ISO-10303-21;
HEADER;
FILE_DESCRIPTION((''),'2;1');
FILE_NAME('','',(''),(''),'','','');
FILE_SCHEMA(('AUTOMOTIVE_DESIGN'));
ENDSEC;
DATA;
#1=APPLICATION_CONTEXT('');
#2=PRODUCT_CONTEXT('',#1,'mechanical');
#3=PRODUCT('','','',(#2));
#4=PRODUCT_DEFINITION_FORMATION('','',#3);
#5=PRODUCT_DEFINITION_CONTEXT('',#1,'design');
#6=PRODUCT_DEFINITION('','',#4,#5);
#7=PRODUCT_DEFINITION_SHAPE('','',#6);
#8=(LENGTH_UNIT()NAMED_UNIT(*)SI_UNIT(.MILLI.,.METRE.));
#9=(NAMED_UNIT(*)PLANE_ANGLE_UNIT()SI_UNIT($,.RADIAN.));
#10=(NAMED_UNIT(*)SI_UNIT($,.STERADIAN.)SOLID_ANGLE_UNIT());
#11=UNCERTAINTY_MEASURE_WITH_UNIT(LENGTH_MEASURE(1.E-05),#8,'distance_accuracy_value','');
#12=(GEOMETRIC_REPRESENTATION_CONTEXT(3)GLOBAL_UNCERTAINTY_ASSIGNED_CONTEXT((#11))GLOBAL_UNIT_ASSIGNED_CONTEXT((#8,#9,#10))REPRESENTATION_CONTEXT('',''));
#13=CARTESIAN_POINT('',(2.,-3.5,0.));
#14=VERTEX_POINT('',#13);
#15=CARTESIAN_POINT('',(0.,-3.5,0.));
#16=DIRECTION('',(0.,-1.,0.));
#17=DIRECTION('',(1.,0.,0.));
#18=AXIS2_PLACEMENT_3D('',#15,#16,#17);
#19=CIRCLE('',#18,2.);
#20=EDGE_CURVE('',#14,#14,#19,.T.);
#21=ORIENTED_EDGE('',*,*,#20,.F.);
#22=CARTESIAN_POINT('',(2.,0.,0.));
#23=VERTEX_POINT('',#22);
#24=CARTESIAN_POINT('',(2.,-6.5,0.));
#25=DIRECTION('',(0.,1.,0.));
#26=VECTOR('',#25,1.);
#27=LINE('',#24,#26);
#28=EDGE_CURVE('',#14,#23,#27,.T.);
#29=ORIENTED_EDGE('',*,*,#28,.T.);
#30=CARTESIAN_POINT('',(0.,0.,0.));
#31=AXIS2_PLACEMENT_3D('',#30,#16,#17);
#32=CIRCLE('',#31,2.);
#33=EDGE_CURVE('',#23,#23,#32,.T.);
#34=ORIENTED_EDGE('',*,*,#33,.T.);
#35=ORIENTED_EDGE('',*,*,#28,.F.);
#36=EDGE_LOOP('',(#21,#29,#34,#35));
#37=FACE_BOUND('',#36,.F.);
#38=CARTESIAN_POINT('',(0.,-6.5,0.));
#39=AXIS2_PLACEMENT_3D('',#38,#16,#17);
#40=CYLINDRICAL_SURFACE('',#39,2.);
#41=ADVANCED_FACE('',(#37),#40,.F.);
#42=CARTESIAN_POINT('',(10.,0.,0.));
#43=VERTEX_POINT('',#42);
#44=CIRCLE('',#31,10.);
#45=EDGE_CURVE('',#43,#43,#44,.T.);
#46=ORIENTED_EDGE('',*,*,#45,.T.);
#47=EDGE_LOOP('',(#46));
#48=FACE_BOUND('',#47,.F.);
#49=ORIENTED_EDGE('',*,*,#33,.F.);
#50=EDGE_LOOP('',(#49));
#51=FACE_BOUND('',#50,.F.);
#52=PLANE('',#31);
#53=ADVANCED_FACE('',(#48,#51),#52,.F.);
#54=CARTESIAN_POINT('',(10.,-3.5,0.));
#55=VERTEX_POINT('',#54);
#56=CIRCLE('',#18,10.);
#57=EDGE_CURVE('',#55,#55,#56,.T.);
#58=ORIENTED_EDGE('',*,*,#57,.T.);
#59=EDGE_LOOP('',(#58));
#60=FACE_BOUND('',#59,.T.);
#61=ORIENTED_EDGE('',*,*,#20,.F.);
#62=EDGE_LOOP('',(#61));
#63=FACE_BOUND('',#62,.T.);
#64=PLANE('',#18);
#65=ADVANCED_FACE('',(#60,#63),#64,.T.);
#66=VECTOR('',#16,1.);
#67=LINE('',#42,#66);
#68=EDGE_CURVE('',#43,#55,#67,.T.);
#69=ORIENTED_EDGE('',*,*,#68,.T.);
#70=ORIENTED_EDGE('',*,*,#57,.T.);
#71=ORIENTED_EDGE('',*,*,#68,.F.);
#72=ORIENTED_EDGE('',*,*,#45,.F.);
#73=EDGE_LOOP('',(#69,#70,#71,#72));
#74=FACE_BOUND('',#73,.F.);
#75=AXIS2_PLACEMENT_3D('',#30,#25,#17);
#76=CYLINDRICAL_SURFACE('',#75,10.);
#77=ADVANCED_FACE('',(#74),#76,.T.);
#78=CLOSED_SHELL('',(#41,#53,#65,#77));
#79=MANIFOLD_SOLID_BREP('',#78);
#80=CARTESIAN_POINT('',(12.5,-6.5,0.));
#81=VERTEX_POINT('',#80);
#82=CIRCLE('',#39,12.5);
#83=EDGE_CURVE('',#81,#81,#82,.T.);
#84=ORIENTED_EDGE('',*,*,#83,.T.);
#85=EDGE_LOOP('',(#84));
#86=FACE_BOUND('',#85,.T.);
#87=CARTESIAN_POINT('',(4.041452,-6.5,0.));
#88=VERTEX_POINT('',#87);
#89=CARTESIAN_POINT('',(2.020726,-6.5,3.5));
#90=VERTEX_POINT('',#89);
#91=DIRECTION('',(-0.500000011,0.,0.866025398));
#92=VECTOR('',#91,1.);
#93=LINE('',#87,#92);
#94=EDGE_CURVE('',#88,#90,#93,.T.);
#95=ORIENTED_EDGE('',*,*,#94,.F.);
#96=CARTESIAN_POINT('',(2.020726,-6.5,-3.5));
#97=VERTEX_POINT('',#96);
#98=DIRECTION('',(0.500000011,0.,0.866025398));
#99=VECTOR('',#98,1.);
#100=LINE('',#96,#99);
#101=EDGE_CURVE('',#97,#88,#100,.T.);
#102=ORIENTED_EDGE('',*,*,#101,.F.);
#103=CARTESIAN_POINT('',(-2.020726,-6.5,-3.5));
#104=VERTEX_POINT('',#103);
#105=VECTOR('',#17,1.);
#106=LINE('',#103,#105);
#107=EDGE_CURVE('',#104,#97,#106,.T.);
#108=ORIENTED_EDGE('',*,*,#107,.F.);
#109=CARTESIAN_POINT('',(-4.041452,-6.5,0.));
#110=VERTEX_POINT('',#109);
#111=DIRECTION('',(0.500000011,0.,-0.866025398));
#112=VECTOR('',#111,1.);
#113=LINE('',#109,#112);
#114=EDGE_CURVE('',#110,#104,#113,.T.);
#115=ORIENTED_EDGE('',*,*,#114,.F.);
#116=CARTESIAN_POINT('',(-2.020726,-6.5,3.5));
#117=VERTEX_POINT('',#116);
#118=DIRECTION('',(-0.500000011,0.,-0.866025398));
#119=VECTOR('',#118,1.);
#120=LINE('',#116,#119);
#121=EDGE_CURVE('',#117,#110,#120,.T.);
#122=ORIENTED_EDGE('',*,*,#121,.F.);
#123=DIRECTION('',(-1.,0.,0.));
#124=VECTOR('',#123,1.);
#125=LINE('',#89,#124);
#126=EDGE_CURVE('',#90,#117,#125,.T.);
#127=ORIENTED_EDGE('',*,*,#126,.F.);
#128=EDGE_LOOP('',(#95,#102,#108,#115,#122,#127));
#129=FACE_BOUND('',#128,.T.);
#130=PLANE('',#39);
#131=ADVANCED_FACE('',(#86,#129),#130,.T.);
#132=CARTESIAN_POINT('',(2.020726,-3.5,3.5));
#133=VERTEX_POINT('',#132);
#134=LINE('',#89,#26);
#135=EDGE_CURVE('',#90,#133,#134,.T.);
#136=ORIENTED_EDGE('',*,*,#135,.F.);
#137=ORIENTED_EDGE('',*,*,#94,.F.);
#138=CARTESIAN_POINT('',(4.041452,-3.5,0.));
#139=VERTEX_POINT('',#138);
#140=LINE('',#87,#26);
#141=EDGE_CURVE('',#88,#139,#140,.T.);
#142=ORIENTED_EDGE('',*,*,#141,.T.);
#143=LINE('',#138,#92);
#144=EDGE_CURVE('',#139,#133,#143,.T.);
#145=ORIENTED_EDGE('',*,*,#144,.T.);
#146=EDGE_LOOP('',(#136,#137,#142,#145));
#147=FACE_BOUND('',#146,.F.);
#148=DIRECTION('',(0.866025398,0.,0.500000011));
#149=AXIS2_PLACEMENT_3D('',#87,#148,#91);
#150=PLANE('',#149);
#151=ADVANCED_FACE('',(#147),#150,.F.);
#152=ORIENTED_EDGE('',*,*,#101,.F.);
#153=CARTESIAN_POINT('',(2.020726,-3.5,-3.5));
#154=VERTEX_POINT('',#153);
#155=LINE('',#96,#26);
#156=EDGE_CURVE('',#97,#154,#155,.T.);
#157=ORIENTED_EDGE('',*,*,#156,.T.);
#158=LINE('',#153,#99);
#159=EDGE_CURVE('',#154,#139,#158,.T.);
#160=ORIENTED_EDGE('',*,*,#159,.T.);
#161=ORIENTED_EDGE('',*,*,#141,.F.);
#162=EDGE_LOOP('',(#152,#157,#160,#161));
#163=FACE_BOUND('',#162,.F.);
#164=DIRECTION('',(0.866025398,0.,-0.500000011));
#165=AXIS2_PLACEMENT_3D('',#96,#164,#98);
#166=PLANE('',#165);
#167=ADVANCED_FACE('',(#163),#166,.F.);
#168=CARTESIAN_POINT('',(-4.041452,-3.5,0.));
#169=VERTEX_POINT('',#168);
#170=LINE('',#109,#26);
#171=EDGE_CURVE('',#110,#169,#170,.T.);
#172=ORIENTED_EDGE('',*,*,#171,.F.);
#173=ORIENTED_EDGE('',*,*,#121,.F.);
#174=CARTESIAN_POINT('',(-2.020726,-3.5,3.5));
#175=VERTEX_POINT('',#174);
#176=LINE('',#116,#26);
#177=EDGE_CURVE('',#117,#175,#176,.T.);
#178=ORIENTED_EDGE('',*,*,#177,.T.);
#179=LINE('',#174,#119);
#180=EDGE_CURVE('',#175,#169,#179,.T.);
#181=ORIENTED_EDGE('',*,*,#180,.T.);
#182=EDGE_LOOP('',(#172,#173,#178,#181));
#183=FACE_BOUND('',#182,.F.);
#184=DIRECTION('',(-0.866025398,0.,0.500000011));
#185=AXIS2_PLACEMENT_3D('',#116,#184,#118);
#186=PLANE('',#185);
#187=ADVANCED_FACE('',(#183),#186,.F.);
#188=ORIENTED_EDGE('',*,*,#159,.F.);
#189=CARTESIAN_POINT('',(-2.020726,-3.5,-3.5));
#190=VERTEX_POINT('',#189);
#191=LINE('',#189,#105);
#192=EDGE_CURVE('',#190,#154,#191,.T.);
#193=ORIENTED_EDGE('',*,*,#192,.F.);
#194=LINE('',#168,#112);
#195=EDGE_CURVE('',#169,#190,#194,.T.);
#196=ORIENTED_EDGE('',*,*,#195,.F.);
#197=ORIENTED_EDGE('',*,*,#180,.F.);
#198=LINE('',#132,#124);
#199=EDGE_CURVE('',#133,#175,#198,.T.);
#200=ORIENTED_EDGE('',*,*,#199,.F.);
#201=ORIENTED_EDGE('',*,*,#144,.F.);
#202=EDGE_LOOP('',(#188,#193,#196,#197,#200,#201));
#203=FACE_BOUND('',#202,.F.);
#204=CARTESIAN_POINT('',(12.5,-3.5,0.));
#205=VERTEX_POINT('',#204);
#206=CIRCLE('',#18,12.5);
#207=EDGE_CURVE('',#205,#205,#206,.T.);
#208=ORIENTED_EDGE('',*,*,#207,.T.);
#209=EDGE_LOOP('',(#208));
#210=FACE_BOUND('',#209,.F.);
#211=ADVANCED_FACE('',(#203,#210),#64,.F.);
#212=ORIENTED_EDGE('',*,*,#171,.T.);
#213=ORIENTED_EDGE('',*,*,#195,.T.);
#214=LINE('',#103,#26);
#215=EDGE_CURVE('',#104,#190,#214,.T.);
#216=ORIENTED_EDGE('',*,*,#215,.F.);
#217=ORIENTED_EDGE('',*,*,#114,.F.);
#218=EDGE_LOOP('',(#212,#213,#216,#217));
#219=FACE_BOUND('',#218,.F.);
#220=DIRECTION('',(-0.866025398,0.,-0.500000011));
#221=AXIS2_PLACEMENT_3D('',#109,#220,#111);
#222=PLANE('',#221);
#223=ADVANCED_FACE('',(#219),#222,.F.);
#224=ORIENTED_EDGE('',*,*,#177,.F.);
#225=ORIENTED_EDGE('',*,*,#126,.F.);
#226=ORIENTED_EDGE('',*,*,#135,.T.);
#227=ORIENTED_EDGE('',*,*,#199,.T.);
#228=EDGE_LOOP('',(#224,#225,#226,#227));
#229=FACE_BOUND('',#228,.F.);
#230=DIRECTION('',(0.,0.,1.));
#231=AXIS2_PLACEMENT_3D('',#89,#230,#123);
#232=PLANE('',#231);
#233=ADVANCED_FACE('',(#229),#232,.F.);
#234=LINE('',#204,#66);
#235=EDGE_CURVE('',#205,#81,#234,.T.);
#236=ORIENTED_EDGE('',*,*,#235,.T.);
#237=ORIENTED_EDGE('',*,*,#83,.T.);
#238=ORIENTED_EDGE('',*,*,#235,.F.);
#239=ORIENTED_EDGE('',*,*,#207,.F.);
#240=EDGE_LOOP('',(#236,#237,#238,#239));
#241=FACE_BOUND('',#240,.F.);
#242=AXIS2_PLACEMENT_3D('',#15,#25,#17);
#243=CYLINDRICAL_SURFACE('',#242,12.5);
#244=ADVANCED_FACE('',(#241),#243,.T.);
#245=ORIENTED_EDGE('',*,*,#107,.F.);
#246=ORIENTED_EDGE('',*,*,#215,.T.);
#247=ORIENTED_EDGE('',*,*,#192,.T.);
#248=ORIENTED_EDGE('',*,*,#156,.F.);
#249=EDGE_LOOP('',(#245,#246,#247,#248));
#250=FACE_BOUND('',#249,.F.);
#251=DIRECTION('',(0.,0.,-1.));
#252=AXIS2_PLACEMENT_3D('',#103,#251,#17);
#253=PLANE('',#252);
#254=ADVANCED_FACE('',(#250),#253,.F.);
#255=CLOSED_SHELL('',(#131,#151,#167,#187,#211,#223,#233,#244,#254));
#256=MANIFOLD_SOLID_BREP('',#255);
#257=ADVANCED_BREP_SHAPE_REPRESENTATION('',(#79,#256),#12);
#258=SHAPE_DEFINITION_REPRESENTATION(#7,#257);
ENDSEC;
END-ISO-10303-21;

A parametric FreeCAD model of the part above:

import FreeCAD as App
import Part
import Sketcher
Q = App.Units.Quantity

doc = App.newDocument("Part")
params = doc.addObject("Spreadsheet::Sheet", "Params")
for row, (alias, value) in enumerate([
    ("sketch1_diameter", "20 mm"),
    ("pad1_length", "3.5 mm"),
    ("sketch2_diameter", "25 mm"),
    ("pad2_length", "3 mm"),
    ("sketch3_diameter", "4 mm"),
    ("pad3_length", "25 mm"),
    ("pocket1_length", "3 mm"),
], start=1):
    params.set(f"A{row}", alias)
    params.set(f"B{row}", "=" + value)
    params.setAlias(f"B{row}", alias)

body = doc.addObject("PartDesign::Body", "Body")

# Sketch on XZ plane
sketch1 = body.newObject("Sketcher::SketchObject", "Sketch")
sketch1.AttachmentSupport = (doc.getObject("XZ_Plane"), [""])
sketch1.MapMode = "FlatFace"
sketch1.addGeometry(Part.Circle(App.Vector(0, 0, 0), App.Vector(0, 0, 1), 10), False)
sketch1.addConstraint(Sketcher.Constraint("Coincident", 0, 3, -1, 1))
sketch1.addConstraint(Sketcher.Constraint("Diameter", 0, Q("20 mm")))
sketch1.setExpression("Constraints[1]", "Params.sketch1_diameter")
pad1 = body.newObject("PartDesign::Pad", "Pad")
pad1.Profile = sketch1
pad1.setExpression("Length", "Params.pad1_length")
body2 = doc.addObject("PartDesign::Body", "Body001")

# Sketch on XZ plane
sketch2 = body2.newObject("Sketcher::SketchObject", "Sketch001")
sketch2.AttachmentSupport = (doc.getObject("XZ_Plane001"), [""])
sketch2.MapMode = "FlatFace"
sketch2.AttachmentOffset = App.Placement(App.Vector(0, 0, 3.5), App.Rotation())
sketch2.addGeometry(Part.Circle(App.Vector(0, 0, 0), App.Vector(0, 0, 1), 12.5), False)
sketch2.addConstraint(Sketcher.Constraint("Coincident", 0, 3, -1, 1))
sketch2.addConstraint(Sketcher.Constraint("Diameter", 0, Q("25 mm")))
sketch2.setExpression("Constraints[1]", "Params.sketch2_diameter")
pad2 = body2.newObject("PartDesign::Pad", "Pad001")
pad2.Profile = sketch2
pad2.setExpression("Length", "Params.pad2_length")
body3 = doc.addObject("PartDesign::Body", "Body002")

# Sketch on XZ plane
sketch3 = body3.newObject("Sketcher::SketchObject", "Sketch002")
sketch3.AttachmentSupport = (doc.getObject("XZ_Plane002"), [""])
sketch3.MapMode = "FlatFace"
sketch3.AttachmentOffset = App.Placement(App.Vector(0, 0, 6.5), App.Rotation())
sketch3.addGeometry(Part.Circle(App.Vector(0, 0, 0), App.Vector(0, 0, 1), 2), False)
sketch3.addConstraint(Sketcher.Constraint("Coincident", 0, 3, -1, 1))
sketch3.addConstraint(Sketcher.Constraint("Diameter", 0, Q("4 mm")))
sketch3.setExpression("Constraints[1]", "Params.sketch3_diameter")
pad3 = body3.newObject("PartDesign::Pad", "Pad002")
pad3.Profile = sketch3
pad3.setExpression("Length", "Params.pad3_length")
pad3.Reversed = True
doc.recompute()

body4 = doc.addObject("PartDesign::Body", "Body003")
body4.BaseFeature = body3
boolean = body.newObject("PartDesign::Boolean", "Boolean")
boolean.Type = "Cut"
boolean.addObjects([body4])
doc.recompute()

boolean2 = body2.newObject("PartDesign::Boolean", "Boolean001")
boolean2.Type = "Cut"
boolean2.addObjects([body3])

# Sketch on XZ plane
sketch4 = body2.newObject("Sketcher::SketchObject", "Sketch003")
sketch4.AttachmentSupport = (doc.getObject("XZ_Plane001"), [""])
sketch4.MapMode = "FlatFace"
sketch4.AttachmentOffset = App.Placement(App.Vector(0, 0, 6.5), App.Rotation())
sketch4.addGeometry(Part.LineSegment(App.Vector(2.020726, 3.5, 0), App.Vector(-2.020726, 3.5, 0)), False)
sketch4.addGeometry(Part.LineSegment(App.Vector(-2.020726, 3.5, 0), App.Vector(-4.041452, 0, 0)), False)
sketch4.addGeometry(Part.LineSegment(App.Vector(-4.041452, 0, 0), App.Vector(-2.020726, -3.5, 0)), False)
sketch4.addGeometry(Part.LineSegment(App.Vector(-2.020726, -3.5, 0), App.Vector(2.020726, -3.5, 0)), False)
sketch4.addGeometry(Part.LineSegment(App.Vector(2.020726, -3.5, 0), App.Vector(4.041452, 0, 0)), False)
sketch4.addGeometry(Part.LineSegment(App.Vector(4.041452, 0, 0), App.Vector(2.020726, 3.5, 0)), False)
sketch4.addConstraint(Sketcher.Constraint("Coincident", 0, 2, 1, 1))
sketch4.addConstraint(Sketcher.Constraint("Coincident", 1, 2, 2, 1))
sketch4.addConstraint(Sketcher.Constraint("Coincident", 2, 2, 3, 1))
sketch4.addConstraint(Sketcher.Constraint("Coincident", 3, 2, 4, 1))
sketch4.addConstraint(Sketcher.Constraint("Coincident", 4, 2, 5, 1))
sketch4.addConstraint(Sketcher.Constraint("Coincident", 5, 2, 0, 1))
sketch4.addConstraint(Sketcher.Constraint("Horizontal", 0))
sketch4.addConstraint(Sketcher.Constraint("Horizontal", 3))
sketch4.addConstraint(Sketcher.Constraint("Symmetric", 0, 2, 3, 2, -1, 1))
sketch4.addConstraint(Sketcher.Constraint("Symmetric", 1, 2, 4, 2, -1, 1))
sketch4.addConstraint(Sketcher.Constraint("PointOnObject", 1, 2, -1))
sketch4.addConstraint(Sketcher.Constraint("Parallel", 2, 5))
sketch4.addConstraint(Sketcher.Constraint("Vertical", 0, 2, 2, 2))
sketch4.addConstraint(Sketcher.Constraint("Angle", 1, Q("-120.000001 deg")))
sketch4.addConstraint(Sketcher.Constraint("DistanceY", 2, 2, 0, 2, Q("7 mm")))
sketch4.addConstraint(Sketcher.Constraint("DistanceX", 0, 2, 0, 1, Q("4.041452 mm")))
pocket1 = body2.newObject("PartDesign::Pocket", "Pocket")
pocket1.Profile = sketch4
pocket1.setExpression("Length", "Params.pocket1_length")

doc.recompute()
